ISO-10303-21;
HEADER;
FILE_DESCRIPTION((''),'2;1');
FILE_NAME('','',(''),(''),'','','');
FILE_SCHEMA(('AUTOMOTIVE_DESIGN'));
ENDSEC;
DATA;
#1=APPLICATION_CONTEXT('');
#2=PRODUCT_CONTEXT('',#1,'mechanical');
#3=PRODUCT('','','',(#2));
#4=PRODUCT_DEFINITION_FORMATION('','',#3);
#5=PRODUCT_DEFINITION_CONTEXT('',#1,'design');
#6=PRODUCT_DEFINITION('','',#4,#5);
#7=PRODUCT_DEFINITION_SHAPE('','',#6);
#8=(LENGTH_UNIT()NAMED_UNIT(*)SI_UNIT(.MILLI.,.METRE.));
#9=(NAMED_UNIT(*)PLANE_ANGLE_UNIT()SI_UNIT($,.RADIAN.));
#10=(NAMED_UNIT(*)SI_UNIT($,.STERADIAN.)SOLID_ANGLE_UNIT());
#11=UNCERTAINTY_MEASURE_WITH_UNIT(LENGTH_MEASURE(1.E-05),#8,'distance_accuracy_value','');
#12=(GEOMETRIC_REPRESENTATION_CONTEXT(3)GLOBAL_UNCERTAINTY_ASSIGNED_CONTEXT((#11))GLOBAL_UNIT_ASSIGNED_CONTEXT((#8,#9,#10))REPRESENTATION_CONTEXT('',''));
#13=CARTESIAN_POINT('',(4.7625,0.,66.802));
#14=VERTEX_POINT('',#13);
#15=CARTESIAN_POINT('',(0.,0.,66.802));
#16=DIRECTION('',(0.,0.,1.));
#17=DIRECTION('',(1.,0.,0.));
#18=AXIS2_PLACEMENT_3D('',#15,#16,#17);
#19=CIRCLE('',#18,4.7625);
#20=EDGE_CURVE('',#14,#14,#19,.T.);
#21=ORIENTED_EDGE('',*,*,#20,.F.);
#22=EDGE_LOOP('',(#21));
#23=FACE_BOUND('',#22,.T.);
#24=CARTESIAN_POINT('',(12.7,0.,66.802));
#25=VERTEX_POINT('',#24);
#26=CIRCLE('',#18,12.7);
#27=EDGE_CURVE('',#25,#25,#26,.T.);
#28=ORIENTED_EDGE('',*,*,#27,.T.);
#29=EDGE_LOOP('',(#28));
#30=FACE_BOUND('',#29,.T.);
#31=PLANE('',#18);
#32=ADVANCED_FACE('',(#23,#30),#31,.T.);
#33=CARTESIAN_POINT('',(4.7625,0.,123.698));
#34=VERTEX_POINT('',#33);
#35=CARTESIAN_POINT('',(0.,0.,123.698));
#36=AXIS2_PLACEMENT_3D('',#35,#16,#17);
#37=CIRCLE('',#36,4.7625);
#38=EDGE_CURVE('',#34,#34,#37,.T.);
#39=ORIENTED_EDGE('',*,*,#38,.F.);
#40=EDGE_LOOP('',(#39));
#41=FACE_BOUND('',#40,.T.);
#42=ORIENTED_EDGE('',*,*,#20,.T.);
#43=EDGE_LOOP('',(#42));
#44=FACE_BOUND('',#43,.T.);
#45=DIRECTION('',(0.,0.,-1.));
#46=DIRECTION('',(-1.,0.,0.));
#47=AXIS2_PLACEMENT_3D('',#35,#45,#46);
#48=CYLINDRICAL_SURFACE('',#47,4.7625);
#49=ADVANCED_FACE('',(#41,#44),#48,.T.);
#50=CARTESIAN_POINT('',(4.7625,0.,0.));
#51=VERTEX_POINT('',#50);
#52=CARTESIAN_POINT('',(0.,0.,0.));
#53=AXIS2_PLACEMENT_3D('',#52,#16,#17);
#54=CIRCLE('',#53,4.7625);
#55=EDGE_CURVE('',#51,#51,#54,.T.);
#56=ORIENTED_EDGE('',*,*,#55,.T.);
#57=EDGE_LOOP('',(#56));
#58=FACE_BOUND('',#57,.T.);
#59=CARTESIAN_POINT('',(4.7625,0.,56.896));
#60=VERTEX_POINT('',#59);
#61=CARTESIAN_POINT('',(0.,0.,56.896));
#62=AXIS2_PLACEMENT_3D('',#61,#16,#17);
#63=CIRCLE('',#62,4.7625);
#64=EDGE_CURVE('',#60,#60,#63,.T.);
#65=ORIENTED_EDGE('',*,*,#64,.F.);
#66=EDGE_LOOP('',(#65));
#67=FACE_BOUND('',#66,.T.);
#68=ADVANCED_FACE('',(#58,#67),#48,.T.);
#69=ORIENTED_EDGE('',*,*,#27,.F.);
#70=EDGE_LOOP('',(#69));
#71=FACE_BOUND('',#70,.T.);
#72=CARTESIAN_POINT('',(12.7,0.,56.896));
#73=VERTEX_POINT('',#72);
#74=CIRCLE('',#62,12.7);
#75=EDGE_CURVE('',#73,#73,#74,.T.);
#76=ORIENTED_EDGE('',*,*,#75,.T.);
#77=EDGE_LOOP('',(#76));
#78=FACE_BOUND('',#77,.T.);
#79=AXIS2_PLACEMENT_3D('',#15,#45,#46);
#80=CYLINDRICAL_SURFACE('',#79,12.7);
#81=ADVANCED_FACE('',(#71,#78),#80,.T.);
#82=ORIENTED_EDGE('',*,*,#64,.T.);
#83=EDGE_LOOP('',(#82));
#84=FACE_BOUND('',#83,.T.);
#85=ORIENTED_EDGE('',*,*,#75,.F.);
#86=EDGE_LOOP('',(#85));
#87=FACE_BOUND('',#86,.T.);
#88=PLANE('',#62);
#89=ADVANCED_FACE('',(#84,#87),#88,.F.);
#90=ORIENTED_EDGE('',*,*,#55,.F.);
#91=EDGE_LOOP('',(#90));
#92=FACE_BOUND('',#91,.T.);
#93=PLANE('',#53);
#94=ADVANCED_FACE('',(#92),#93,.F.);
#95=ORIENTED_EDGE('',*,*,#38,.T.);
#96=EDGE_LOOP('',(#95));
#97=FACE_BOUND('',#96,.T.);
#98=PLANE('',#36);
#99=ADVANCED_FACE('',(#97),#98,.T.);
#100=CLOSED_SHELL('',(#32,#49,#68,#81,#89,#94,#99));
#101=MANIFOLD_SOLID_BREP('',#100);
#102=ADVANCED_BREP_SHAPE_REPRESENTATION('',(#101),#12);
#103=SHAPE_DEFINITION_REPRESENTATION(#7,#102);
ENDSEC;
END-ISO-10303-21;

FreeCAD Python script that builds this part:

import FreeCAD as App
import Part
import Sketcher
Q = App.Units.Quantity

doc = App.newDocument("Part")
body = doc.addObject("PartDesign::Body", "Body")

sketch1 = body.newObject("Sketcher::SketchObject", "Sketch")
sketch1.AttachmentSupport = (doc.getObject("XY_Plane"), [""])
sketch1.MapMode = "FlatFace"
sketch1.addGeometry(Part.Circle(App.Vector(0, 0, 0), App.Vector(0, 0, 1), 4.8), False)
sketch1.addConstraint([
    Sketcher.Constraint("Coincident", 0, 3, -1, 1),
    Sketcher.Constraint("Diameter", 0, Q("0.375 in")),
])
pad1 = body.newObject("PartDesign::Pad", "Pad")
pad1.Profile = sketch1
pad1.Length = Q("4.87 in")

sketch2 = body.newObject("Sketcher::SketchObject", "Sketch001")
sketch2.AttachmentSupport = (doc.getObject("XY_Plane"), [""])
sketch2.MapMode = "FlatFace"
sketch2.AttachmentOffset = App.Placement(App.Vector(0, 0, 2.435 * 25.4), App.Rotation())
sketch2.addGeometry(Part.Circle(App.Vector(0, 0, 0), App.Vector(0, 0, 1), 13), False)
sketch2.addConstraint([
    Sketcher.Constraint("Coincident", 0, 3, -1, 1),
    Sketcher.Constraint("Diameter", 0, Q("1 in")),
])
pad2 = body.newObject("PartDesign::Pad", "Pad001")
pad2.Profile = sketch2
pad2.Length = Q("0.39 in")
pad2.Midplane = True

doc.recompute()
